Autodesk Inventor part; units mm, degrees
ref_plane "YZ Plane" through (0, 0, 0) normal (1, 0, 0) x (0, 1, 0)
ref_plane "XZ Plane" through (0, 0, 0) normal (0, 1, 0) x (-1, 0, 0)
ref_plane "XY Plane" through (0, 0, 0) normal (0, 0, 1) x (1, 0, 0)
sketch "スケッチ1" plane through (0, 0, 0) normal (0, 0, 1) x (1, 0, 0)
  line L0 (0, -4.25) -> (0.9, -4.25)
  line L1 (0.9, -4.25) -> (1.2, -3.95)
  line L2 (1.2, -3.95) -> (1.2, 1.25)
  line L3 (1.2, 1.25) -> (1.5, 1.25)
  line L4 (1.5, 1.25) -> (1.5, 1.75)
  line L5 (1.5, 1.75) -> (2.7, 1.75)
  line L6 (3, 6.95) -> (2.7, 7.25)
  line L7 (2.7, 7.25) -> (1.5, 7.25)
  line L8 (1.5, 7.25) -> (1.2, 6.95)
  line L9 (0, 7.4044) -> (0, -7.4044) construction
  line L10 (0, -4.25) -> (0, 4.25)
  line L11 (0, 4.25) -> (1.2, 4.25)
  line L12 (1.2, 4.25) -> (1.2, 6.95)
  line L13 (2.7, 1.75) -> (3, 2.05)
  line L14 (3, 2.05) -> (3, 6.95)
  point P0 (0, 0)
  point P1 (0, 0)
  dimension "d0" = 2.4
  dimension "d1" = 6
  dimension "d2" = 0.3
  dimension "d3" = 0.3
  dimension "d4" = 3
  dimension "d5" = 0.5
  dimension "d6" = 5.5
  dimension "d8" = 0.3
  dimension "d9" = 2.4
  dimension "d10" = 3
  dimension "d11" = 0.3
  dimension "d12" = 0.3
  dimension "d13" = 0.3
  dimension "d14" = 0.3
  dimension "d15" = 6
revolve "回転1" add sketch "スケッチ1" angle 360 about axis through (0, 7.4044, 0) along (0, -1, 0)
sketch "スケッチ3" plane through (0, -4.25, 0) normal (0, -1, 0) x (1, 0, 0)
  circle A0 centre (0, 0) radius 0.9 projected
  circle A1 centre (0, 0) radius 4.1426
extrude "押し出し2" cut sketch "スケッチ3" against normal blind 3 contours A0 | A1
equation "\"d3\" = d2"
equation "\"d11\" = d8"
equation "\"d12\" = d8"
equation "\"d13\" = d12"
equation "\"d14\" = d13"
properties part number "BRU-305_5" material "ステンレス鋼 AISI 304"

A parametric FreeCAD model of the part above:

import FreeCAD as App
import Part
import Sketcher
Q = App.Units.Quantity


def add_polygon(sketch, points):
    """Adds a closed chain of lines whose ends are joined by coincident constraints."""
    first, n = sketch.GeometryCount, len(points)
    for a, b in zip(points, points[1:] + points[:1]):
        sketch.addGeometry(Part.LineSegment(App.Vector(*a, 0), App.Vector(*b, 0)), False)
    for i in range(n):
        sketch.addConstraint(Sketcher.Constraint("Coincident", first + i, 2, first + (i + 1) % n, 1))

doc = App.newDocument("Part")
body = doc.addObject("PartDesign::Body", "Body")

sketch1 = doc.addObject("Sketcher::SketchObject", "Sketch")
body.addObject(sketch1)
sketch1.AttachmentSupport = (doc.XY_Plane, [""])
sketch1.MapMode = "FlatFace"
add_polygon(sketch1, [(0, 4.25), (0, -4.25), (0.9, -4.25), (1.2, -3.95), (1.2, 1.25), (1.5, 1.25), (1.5, 1.75), (2.7, 1.75), (3, 2.05), (3, 6.95), (2.7, 7.25), (1.5, 7.25), (1.2, 6.95), (1.2, 4.25)])
sketch1.addConstraint([
    Sketcher.Constraint("Vertical", 0),
    Sketcher.Constraint("Horizontal", 1),
    Sketcher.Constraint("Vertical", 3),
    Sketcher.Constraint("Horizontal", 4),
    Sketcher.Constraint("Vertical", 5),
    Sketcher.Constraint("Horizontal", 6),
    Sketcher.Constraint("Vertical", 8),
    Sketcher.Constraint("Horizontal", 10),
    Sketcher.Constraint("Vertical", 12),
    Sketcher.Constraint("Horizontal", 13),
    Sketcher.Constraint("Symmetric", 0, 2, 13, 2, -1, 1),
    Sketcher.Constraint("Parallel", 2, 7),
    Sketcher.Constraint("Perpendicular", 7, 9),
    Sketcher.Constraint("Perpendicular", 9, 11),
    Sketcher.Constraint("Horizontal", 8, 2, 11, 2),
    Sketcher.Constraint("Vertical", 6, 2, 9, 2),
    Sketcher.Constraint("Vertical", 5, 2, 10, 2),
    Sketcher.Constraint("Vertical", 3, 2, 11, 2),
    Sketcher.Constraint("Equal", 10, 13),
    Sketcher.Constraint("Equal", 2, 7),
    Sketcher.Constraint("Equal", 7, 9),
    Sketcher.Constraint("DistanceX", 4, 1, 4, 2, Q("0.3 mm")),
    Sketcher.Constraint("DistanceY", 5, 1, 5, 2, Q("0.5 mm")),
    Sketcher.Constraint("DistanceX", -1, 1, 7, 2, Q("3 mm")),
    Sketcher.Constraint("DistanceY", 1, 2, 5, 2, Q("6 mm")),
    Sketcher.Constraint("DistanceY", 4, 2, 9, 2, Q("6 mm")),
    Sketcher.Constraint("DistanceY", 3, 2, 12, 2, Q("3 mm")),
])
revolution = doc.addObject("PartDesign::Revolution", "Revolution")
body.addObject(revolution)
revolution.Profile = sketch1
revolution.ReferenceAxis = (sketch1, ["V_Axis"])
revolution.Angle = 360

sketch2 = doc.addObject("Sketcher::SketchObject", "Sketch001")
body.addObject(sketch2)
sketch2.AttachmentSupport = (doc.XZ_Plane, [""])
sketch2.MapMode = "FlatFace"
sketch2.AttachmentOffset = App.Placement(App.Vector(0, 0, 4.25), App.Rotation())
sketch2.addGeometry(Part.Circle(App.Vector(0, 0, 0), App.Vector(0, 0, 1), 4.1), False)
sketch2.addConstraint([
    Sketcher.Constraint("Coincident", 0, 3, -1, 1),
    Sketcher.Constraint("Diameter", 0, Q("8.2852 mm")),
])
pocket1 = doc.addObject("PartDesign::Pocket", "Pocket")
body.addObject(pocket1)
pocket1.Profile = sketch2
pocket1.Length = 3

doc.recompute()
